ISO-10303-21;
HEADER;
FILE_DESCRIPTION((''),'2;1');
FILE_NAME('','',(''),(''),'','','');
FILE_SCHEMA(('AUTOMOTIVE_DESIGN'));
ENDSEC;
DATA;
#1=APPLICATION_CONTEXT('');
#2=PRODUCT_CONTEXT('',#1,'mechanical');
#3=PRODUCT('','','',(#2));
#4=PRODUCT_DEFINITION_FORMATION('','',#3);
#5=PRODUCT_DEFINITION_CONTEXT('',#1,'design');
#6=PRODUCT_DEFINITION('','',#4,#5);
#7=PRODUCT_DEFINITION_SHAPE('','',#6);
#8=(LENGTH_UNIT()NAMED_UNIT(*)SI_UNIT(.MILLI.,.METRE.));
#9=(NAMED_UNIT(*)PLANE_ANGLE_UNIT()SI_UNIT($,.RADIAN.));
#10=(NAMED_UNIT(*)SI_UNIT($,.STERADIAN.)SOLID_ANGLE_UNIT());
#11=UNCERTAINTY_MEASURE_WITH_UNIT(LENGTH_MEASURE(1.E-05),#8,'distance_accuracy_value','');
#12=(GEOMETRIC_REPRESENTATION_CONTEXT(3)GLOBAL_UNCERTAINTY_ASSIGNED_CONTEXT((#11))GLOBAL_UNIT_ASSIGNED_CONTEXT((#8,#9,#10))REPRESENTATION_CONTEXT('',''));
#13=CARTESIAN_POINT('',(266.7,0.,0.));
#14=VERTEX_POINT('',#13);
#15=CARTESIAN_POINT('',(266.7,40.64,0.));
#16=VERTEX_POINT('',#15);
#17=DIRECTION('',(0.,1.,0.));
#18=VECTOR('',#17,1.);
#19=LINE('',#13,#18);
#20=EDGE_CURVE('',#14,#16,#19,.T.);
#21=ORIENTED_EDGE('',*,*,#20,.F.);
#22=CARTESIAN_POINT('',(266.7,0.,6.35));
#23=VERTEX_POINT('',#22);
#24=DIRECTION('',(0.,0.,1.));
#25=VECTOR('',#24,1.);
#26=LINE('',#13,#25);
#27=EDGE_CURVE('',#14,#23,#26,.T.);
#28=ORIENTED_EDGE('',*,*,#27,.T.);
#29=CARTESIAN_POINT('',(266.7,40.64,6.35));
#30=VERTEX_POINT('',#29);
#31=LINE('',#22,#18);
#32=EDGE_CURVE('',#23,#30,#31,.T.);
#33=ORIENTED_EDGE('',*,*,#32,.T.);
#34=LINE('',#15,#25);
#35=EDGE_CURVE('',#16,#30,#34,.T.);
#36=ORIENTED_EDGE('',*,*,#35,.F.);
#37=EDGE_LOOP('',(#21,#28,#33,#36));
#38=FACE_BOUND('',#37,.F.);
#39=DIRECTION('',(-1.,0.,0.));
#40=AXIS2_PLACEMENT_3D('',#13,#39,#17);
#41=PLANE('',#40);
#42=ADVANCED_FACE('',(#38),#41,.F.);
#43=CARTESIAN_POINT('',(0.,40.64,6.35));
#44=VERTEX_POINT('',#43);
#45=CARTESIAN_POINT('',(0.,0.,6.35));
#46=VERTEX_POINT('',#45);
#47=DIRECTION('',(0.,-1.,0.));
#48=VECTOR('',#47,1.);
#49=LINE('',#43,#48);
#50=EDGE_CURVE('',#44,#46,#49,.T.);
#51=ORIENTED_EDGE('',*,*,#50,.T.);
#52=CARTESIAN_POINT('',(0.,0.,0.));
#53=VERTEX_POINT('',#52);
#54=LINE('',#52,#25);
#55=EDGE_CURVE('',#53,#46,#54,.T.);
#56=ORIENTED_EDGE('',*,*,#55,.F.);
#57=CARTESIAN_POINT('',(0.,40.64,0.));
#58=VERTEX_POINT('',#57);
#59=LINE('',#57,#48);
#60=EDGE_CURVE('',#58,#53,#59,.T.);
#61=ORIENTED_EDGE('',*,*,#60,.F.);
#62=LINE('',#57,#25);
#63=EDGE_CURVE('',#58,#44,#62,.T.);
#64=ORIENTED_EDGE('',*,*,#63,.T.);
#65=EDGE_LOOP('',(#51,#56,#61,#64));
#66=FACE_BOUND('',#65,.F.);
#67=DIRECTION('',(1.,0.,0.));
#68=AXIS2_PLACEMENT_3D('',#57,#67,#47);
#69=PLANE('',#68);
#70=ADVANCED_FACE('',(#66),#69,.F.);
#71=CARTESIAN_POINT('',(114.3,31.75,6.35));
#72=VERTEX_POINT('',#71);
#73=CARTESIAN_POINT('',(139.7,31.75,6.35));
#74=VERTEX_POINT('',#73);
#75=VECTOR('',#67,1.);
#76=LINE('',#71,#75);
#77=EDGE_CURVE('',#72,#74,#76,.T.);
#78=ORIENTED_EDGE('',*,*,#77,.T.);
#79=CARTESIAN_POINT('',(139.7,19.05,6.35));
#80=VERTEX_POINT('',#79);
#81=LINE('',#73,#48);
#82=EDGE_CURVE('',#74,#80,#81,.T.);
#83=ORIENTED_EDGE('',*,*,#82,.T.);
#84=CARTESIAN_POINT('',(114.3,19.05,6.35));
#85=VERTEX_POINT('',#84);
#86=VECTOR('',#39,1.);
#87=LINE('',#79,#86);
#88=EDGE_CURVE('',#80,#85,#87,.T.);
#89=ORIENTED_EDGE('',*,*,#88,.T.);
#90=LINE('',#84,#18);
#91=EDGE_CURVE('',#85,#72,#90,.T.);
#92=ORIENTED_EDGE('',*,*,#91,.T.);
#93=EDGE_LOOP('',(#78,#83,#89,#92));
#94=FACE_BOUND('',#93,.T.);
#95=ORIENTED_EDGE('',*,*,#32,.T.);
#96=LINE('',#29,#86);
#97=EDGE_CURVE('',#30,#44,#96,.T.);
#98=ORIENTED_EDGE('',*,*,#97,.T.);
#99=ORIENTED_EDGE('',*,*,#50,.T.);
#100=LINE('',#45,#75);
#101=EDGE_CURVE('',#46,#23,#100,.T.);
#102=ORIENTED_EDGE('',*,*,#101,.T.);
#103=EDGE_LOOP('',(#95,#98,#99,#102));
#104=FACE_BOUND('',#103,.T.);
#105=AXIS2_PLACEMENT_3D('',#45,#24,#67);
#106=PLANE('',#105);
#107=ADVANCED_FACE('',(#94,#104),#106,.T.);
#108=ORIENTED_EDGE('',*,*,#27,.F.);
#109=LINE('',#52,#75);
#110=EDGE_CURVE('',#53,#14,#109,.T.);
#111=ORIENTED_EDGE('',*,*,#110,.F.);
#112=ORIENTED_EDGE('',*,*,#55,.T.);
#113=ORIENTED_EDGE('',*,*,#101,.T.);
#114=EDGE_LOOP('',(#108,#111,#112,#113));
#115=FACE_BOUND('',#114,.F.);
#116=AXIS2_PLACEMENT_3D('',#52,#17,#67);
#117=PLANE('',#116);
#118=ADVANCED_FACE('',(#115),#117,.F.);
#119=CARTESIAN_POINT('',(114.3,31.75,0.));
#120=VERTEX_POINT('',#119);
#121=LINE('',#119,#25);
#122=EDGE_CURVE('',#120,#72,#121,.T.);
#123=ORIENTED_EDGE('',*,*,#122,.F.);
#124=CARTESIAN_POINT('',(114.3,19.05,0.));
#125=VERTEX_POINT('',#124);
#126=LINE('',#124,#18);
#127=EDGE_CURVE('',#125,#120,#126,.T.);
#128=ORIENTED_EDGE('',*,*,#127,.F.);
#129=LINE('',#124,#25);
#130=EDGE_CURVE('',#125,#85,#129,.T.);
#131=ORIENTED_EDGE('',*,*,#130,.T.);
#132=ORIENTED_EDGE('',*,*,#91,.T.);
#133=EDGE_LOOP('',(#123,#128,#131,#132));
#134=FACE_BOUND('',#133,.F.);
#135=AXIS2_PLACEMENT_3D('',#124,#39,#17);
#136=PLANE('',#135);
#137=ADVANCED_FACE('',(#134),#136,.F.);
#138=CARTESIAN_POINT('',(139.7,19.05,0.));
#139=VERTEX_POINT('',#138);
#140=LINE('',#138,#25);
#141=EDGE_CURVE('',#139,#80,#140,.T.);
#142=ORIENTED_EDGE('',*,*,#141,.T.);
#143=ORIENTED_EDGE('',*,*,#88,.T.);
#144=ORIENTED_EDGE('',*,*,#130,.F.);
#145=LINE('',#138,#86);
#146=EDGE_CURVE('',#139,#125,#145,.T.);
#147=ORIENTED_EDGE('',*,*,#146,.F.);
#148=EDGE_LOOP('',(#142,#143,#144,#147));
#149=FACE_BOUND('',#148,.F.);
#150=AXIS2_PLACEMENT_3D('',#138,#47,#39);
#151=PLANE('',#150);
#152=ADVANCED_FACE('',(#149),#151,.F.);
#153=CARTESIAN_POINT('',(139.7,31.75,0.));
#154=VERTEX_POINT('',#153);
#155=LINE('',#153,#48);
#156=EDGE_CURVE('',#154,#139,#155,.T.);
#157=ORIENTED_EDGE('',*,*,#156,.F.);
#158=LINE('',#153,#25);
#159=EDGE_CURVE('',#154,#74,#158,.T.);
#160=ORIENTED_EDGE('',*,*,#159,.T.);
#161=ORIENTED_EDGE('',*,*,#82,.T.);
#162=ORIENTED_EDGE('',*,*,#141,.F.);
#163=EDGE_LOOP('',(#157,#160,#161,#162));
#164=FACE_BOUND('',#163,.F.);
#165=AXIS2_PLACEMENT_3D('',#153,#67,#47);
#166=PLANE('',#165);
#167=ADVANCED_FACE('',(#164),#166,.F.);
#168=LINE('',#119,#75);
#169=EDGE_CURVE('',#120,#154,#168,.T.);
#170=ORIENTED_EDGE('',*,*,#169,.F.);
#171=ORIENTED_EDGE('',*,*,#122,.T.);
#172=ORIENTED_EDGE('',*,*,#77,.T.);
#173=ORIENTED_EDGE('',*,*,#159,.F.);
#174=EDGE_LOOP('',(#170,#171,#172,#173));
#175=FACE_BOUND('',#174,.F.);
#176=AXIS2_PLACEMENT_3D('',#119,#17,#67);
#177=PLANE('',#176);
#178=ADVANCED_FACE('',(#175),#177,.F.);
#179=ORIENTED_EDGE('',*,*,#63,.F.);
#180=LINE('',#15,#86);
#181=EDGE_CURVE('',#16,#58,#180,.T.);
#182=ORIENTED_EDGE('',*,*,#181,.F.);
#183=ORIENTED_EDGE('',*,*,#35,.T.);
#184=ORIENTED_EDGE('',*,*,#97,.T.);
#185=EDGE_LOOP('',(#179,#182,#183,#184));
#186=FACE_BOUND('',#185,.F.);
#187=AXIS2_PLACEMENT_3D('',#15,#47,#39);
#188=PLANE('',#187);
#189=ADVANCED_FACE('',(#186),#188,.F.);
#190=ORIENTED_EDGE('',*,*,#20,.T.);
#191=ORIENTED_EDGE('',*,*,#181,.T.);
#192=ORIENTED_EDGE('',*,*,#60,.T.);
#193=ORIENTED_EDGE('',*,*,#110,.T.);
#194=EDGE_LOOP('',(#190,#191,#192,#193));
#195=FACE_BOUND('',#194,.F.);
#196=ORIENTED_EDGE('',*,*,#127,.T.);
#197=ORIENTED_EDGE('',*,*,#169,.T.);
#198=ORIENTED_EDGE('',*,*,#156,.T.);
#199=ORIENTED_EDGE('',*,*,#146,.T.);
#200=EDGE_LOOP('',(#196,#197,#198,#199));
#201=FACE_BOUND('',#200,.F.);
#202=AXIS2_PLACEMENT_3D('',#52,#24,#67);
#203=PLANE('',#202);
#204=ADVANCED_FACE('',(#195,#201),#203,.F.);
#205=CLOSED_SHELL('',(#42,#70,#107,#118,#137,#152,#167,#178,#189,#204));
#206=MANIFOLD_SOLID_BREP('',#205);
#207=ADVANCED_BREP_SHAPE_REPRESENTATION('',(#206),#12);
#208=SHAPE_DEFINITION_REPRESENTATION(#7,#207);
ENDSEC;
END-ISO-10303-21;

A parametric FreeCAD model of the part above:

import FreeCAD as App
import Part
import Sketcher
from FreeCAD import Vector
Q = App.Units.Quantity

doc = App.newDocument("Part")
body = doc.addObject("PartDesign::Body", "Body")

sketch1 = doc.addObject("Sketcher::SketchObject", "Sketch")
body.addObject(sketch1)
sketch1.AttachmentSupport = (doc.XY_Plane, [""])
sketch1.MapMode = "FlatFace"
sketch1.addGeometry([
    Part.LineSegment(Vector(0, 41, 0), Vector(0, 0, 0)),
    Part.LineSegment(Vector(0, 0, 0), Vector(267, 0, 0)),
    Part.LineSegment(Vector(267, 0, 0), Vector(267, 41, 0)),
    Part.LineSegment(Vector(267, 41, 0), Vector(0, 41, 0)),
    Part.LineSegment(Vector(114, 19, 0), Vector(114, 32, 0)),
    Part.LineSegment(Vector(114, 32, 0), Vector(140, 32, 0)),
    Part.LineSegment(Vector(140, 32, 0), Vector(140, 19, 0)),
    Part.LineSegment(Vector(140, 19, 0), Vector(114, 19, 0)),
], False)
sketch1.addConstraint([
    Sketcher.Constraint("Coincident", 0, 2, 1, 1),
    Sketcher.Constraint("Coincident", 1, 2, 2, 1),
    Sketcher.Constraint("Coincident", 2, 2, 3, 1),
    Sketcher.Constraint("Coincident", 3, 2, 0, 1),
    Sketcher.Constraint("Coincident", 4, 2, 5, 1),
    Sketcher.Constraint("Coincident", 5, 2, 6, 1),
    Sketcher.Constraint("Coincident", 6, 2, 7, 1),
    Sketcher.Constraint("Coincident", 7, 2, 4, 1),
    Sketcher.Constraint("Vertical", 0),
    Sketcher.Constraint("Horizontal", 1),
    Sketcher.Constraint("Vertical", 2),
    Sketcher.Constraint("Horizontal", 3),
    Sketcher.Constraint("Vertical", 4),
    Sketcher.Constraint("Horizontal", 5),
    Sketcher.Constraint("Vertical", 6),
    Sketcher.Constraint("Horizontal", 7),
    Sketcher.Constraint("Coincident", 0, 2, -1, 1),
    Sketcher.Constraint("DistanceX", 5, 1, 5, 2, Q("1 in")),
    Sketcher.Constraint("DistanceX", 1, 1, 1, 2, Q("10.5 in")),
    Sketcher.Constraint("DistanceY", 0, 2, 0, 1, Q("1.6 in")),
    Sketcher.Constraint("DistanceY", 4, 1, 4, 2, Q("0.5 in")),
    Sketcher.Constraint("DistanceX", 5, 2, 2, 2, Q("5 in")),
    Sketcher.Constraint("DistanceY", -1, 1, 6, 2, Q("0.75 in")),
])
pad1 = doc.addObject("PartDesign::Pad", "Pad")
body.addObject(pad1)
pad1.Profile = sketch1
pad1.Length = Q("0.25 in")

doc.recompute()
